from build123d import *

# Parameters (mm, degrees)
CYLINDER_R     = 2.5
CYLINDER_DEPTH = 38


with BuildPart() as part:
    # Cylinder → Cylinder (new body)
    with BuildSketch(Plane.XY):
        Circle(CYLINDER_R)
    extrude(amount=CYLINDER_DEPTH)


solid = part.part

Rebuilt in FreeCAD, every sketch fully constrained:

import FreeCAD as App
import Part
import Sketcher
from FreeCAD import Vector
Q = App.Units.Quantity

doc = App.newDocument("Part")
params = doc.addObject("Spreadsheet::Sheet", "Params")
for row, (alias, value) in enumerate([
    ("sketch1_diameter", "5 mm"),
    ("pad1_length", "38 mm"),
], start=1):
    params.set(f"A{row}", alias)
    params.set(f"B{row}", "=" + value)
    params.setAlias(f"B{row}", alias)

body = doc.addObject("PartDesign::Body", "Body")

# Sketch on XY plane
sketch1 = body.newObject("Sketcher::SketchObject", "Sketch")
sketch1.AttachmentSupport = (doc.getObject("XY_Plane"), [""])
sketch1.MapMode = "FlatFace"
sketch1.addGeometry(Part.Circle(Vector(0, 0, 0), Vector(0, 0, 1), 2.5), False)
sketch1.addConstraint(Sketcher.Constraint("Coincident", 0, 3, -1, 1))
sketch1.addConstraint(Sketcher.Constraint("Diameter", 0, Q("5 mm")))
sketch1.setExpression("Constraints[1]", "Params.sketch1_diameter")
pad1 = body.newObject("PartDesign::Pad", "Pad")
pad1.Profile = sketch1
pad1.setExpression("Length", "Params.pad1_length")

doc.recompute()
